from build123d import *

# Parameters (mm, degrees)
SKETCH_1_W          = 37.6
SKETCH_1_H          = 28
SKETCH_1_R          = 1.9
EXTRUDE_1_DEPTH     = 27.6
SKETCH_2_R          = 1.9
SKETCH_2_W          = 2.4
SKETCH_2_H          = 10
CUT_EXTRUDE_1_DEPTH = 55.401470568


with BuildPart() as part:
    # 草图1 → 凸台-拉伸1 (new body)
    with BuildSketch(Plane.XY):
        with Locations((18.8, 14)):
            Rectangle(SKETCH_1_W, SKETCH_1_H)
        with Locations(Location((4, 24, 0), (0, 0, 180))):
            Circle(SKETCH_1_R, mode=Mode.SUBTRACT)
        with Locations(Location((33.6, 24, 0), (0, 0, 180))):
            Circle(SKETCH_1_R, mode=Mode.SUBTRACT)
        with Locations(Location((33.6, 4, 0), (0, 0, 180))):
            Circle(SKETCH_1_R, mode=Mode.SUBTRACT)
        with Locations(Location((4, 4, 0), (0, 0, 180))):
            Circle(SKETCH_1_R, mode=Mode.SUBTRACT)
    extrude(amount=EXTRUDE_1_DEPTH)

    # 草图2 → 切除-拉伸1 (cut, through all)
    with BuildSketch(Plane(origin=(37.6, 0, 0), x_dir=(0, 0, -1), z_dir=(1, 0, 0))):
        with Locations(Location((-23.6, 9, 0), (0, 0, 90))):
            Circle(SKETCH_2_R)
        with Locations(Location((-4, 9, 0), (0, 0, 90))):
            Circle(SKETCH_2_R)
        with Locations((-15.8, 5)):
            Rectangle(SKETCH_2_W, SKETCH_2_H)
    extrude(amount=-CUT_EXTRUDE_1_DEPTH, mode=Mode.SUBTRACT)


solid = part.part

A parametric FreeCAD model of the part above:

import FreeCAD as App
import Part
import Sketcher
Q = App.Units.Quantity

doc = App.newDocument("Part")
body = doc.addObject("PartDesign::Body", "Body")

# Sketch on XY plane
sketch1 = doc.addObject("Sketcher::SketchObject", "Sketch")
body.addObject(sketch1)
sketch1.AttachmentSupport = (doc.XY_Plane, [""])
sketch1.MapMode = "FlatFace"
sketch1.addGeometry(Part.LineSegment(App.Vector(0, 28, 0), App.Vector(0, 0, 0)), False)
sketch1.addGeometry(Part.LineSegment(App.Vector(0, 0, 0), App.Vector(37.6, 0, 0)), False)
sketch1.addGeometry(Part.LineSegment(App.Vector(37.6, 0, 0), App.Vector(37.6, 28, 0)), False)
sketch1.addGeometry(Part.LineSegment(App.Vector(37.6, 28, 0), App.Vector(0, 28, 0)), False)
sketch1.addGeometry(Part.Circle(App.Vector(4, 4, 0), App.Vector(0, 0, 1), 1.9), False)
sketch1.addGeometry(Part.Circle(App.Vector(33.6, 4, 0), App.Vector(0, 0, 1), 1.9), False)
sketch1.addGeometry(Part.Circle(App.Vector(4, 24, 0), App.Vector(0, 0, 1), 1.9), False)
sketch1.addGeometry(Part.Circle(App.Vector(33.6, 24, 0), App.Vector(0, 0, 1), 1.9), False)
sketch1.addConstraint(Sketcher.Constraint("Coincident", 0, 2, 1, 1))
sketch1.addConstraint(Sketcher.Constraint("Coincident", 1, 2, 2, 1))
sketch1.addConstraint(Sketcher.Constraint("Coincident", 2, 2, 3, 1))
sketch1.addConstraint(Sketcher.Constraint("Coincident", 3, 2, 0, 1))
sketch1.addConstraint(Sketcher.Constraint("Vertical", 0))
sketch1.addConstraint(Sketcher.Constraint("Horizontal", 1))
sketch1.addConstraint(Sketcher.Constraint("Vertical", 2))
sketch1.addConstraint(Sketcher.Constraint("Horizontal", 3))
sketch1.addConstraint(Sketcher.Constraint("Coincident", 0, 2, -1, 1))
sketch1.addConstraint(Sketcher.Constraint("Equal", 4, 5))
sketch1.addConstraint(Sketcher.Constraint("Equal", 5, 6))
sketch1.addConstraint(Sketcher.Constraint("Equal", 6, 7))
sketch1.addConstraint(Sketcher.Constraint("Horizontal", 4, 3, 5, 3))
sketch1.addConstraint(Sketcher.Constraint("Horizontal", 6, 3, 7, 3))
sketch1.addConstraint(Sketcher.Constraint("Vertical", 4, 3, 6, 3))
sketch1.addConstraint(Sketcher.Constraint("Vertical", 5, 3, 7, 3))
sketch1.addConstraint(Sketcher.Constraint("Diameter", 4, Q("3.8 mm")))
sketch1.addConstraint(Sketcher.Constraint("DistanceY", 0, 2, 0, 1, Q("28 mm")))
sketch1.addConstraint(Sketcher.Constraint("DistanceX", 1, 1, 1, 2, Q("37.6 mm")))
sketch1.addConstraint(Sketcher.Constraint("DistanceX", -1, 1, 4, 3, Q("4 mm")))
sketch1.addConstraint(Sketcher.Constraint("DistanceY", -1, 1, 4, 3, Q("4 mm")))
sketch1.addConstraint(Sketcher.Constraint("DistanceY", -1, 1, 6, 3, Q("24 mm")))
sketch1.addConstraint(Sketcher.Constraint("DistanceX", 5, 3, 1, 2, Q("4 mm")))
pad1 = doc.addObject("PartDesign::Pad", "Pad")
body.addObject(pad1)
pad1.Profile = sketch1
pad1.Length = 27.6

# Sketch on YZ plane
sketch2 = doc.addObject("Sketcher::SketchObject", "Sketch001")
body.addObject(sketch2)
sketch2.AttachmentSupport = (doc.YZ_Plane, [""])
sketch2.MapMode = "FlatFace"
sketch2.AttachmentOffset = App.Placement(App.Vector(0, 0, 37.6), App.Rotation())
sketch2.addGeometry(Part.Circle(App.Vector(9, 23.6, 0), App.Vector(0, 0, 1), 1.9), False)
sketch2.addGeometry(Part.Circle(App.Vector(9, 4, 0), App.Vector(0, 0, 1), 1.9), False)
sketch2.addGeometry(Part.LineSegment(App.Vector(10, 17, 0), App.Vector(0, 17, 0)), False)
sketch2.addGeometry(Part.LineSegment(App.Vector(0, 17, 0), App.Vector(0, 14.6, 0)), False)
sketch2.addGeometry(Part.LineSegment(App.Vector(0, 14.6, 0), App.Vector(10, 14.6, 0)), False)
sketch2.addGeometry(Part.LineSegment(App.Vector(10, 14.6, 0), App.Vector(10, 17, 0)), False)
sketch2.addConstraint(Sketcher.Constraint("Coincident", 2, 2, 3, 1))
sketch2.addConstraint(Sketcher.Constraint("Coincident", 3, 2, 4, 1))
sketch2.addConstraint(Sketcher.Constraint("Coincident", 4, 2, 5, 1))
sketch2.addConstraint(Sketcher.Constraint("Coincident", 5, 2, 2, 1))
sketch2.addConstraint(Sketcher.Constraint("Horizontal", 2))
sketch2.addConstraint(Sketcher.Constraint("Vertical", 3))
sketch2.addConstraint(Sketcher.Constraint("Horizontal", 4))
sketch2.addConstraint(Sketcher.Constraint("Vertical", 5))
sketch2.addConstraint(Sketcher.Constraint("Equal", 0, 1))
sketch2.addConstraint(Sketcher.Constraint("PointOnObject", 2, 2, -2))
sketch2.addConstraint(Sketcher.Constraint("Vertical", 0, 3, 1, 3))
sketch2.addConstraint(Sketcher.Constraint("Diameter", 0, Q("3.8 mm")))
sketch2.addConstraint(Sketcher.Constraint("DistanceX", 2, 2, 2, 1, Q("10 mm")))
sketch2.addConstraint(Sketcher.Constraint("DistanceY", 3, 2, 3, 1, Q("2.4 mm")))
sketch2.addConstraint(Sketcher.Constraint("DistanceX", -1, 1, 0, 3, Q("9 mm")))
sketch2.addConstraint(Sketcher.Constraint("DistanceY", -1, 1, 1, 3, Q("4 mm")))
sketch2.addConstraint(Sketcher.Constraint("DistanceY", -1, 1, 2, 2, Q("17 mm")))
sketch2.addConstraint(Sketcher.Constraint("DistanceY", 3, 2, 0, 3, Q("9 mm")))
pocket1 = doc.addObject("PartDesign::Pocket", "Pocket")
body.addObject(pocket1)
pocket1.Profile = sketch2
pocket1.Type = "ThroughAll"

doc.recompute()
